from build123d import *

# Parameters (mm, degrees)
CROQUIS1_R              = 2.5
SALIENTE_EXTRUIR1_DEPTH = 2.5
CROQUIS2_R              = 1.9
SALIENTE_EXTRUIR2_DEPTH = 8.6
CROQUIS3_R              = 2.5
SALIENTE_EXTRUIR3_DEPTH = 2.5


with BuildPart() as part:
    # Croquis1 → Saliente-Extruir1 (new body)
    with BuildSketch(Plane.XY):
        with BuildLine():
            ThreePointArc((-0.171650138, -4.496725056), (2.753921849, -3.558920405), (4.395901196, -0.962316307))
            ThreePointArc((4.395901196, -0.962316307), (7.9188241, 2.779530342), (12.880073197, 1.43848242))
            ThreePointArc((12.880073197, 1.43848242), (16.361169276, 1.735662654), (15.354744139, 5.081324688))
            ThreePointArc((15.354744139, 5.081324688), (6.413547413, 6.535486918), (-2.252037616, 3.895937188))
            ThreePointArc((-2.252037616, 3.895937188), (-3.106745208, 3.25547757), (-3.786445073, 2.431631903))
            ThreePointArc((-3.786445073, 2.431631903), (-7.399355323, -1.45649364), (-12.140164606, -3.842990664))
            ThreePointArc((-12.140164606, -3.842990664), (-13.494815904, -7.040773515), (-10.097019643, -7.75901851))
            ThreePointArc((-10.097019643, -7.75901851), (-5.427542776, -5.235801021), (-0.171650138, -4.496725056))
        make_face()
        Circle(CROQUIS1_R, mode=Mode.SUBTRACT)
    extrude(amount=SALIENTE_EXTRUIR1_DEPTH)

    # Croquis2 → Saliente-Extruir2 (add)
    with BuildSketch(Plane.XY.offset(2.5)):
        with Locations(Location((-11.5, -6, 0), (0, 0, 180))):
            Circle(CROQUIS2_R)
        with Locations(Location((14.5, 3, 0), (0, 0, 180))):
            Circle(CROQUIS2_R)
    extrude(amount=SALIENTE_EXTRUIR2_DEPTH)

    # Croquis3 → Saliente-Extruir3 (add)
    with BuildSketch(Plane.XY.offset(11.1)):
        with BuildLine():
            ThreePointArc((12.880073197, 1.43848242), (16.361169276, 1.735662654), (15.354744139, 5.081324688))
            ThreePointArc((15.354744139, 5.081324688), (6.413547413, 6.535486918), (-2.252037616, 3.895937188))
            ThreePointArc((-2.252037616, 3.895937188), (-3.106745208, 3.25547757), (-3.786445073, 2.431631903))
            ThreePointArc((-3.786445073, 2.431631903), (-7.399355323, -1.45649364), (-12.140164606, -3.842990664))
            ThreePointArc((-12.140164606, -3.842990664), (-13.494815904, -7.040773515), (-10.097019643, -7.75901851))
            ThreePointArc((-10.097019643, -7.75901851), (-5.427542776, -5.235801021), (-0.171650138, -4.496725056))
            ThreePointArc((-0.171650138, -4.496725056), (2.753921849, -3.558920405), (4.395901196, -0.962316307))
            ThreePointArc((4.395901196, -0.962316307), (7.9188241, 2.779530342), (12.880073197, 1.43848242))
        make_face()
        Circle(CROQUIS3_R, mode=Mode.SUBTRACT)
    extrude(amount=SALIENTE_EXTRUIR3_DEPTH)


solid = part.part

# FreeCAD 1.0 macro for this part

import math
import FreeCAD as App
import Part
import Sketcher
Q = App.Units.Quantity

doc = App.newDocument("Part")
params = doc.addObject("Spreadsheet::Sheet", "Params")
for row, (alias, value) in enumerate([
    ("sketch1_diameter", "5 mm"),
    ("sketch1_radius", "5 mm"),
    ("sketch1_radius2", "20 mm"),
    ("sketch1_radius3", "15 mm"),
    ("sketch1_radius4", "4.5 mm"),
    ("pad1_length", "2.5 mm"),
    ("sketch2_diameter", "3.8 mm"),
    ("pad2_length", "8.6 mm"),
    ("sketch3_diameter", "5 mm"),
    ("sketch3_radius", "20 mm"),
    ("sketch3_radius2", "15 mm"),
    ("sketch3_radius3", "5 mm"),
    ("sketch3_radius4", "4.5 mm"),
    ("pad3_length", "2.5 mm"),
], start=1):
    params.set(f"A{row}", alias)
    params.set(f"B{row}", "=" + value)
    params.setAlias(f"B{row}", alias)

body = doc.addObject("PartDesign::Body", "Body")

# Sketch on XY plane
sketch1 = body.newObject("Sketcher::SketchObject", "Sketch")
sketch1.AttachmentSupport = (doc.getObject("XY_Plane"), [""])
sketch1.MapMode = "FlatFace"
sketch1.addGeometry([
    Part.ArcOfCircle(Part.Circle(App.Vector(0, 0, 0), App.Vector(0, 0, 1), 4.5), math.radians(-92), math.radians(-12)),  # 0
    Part.ArcOfCircle(Part.Circle(App.Vector(9.3, -2, 0), App.Vector(0, 0, 1), 5), math.radians(44), math.radians(168)),  # 1
    Part.ArcOfCircle(Part.Circle(App.Vector(14.5, 3, 0), App.Vector(0, 0, 1), 2.2), math.radians(-136), math.radians(68)),  # 2
    Part.ArcOfCircle(Part.Circle(App.Vector(7.8, -13.4, 0), App.Vector(0, 0, 1), 20), math.radians(68), math.radians(120)),  # 3
    Part.ArcOfCircle(Part.Circle(App.Vector(0, 0, 0), App.Vector(0, 0, 1), 4.5), math.radians(120), math.radians(147)),  # 4
    Part.ArcOfCircle(Part.Circle(App.Vector(-16.4, 10.5, 0), App.Vector(0, 0, 1), 15), math.radians(-73), math.radians(-33)),  # 5
    Part.ArcOfCircle(Part.Circle(App.Vector(-11.5, -6, 0), App.Vector(0, 0, 1), 2.2), math.radians(107), math.radians(309)),  # 6
    Part.ArcOfCircle(Part.Circle(App.Vector(-0.7, -19.5, 0), App.Vector(0, 0, 1), 15), math.radians(88), math.radians(129)),  # 7
    Part.Circle(App.Vector(0, 0, 0), App.Vector(0, 0, 1), 2.5),  # 8
], False)
sketch1.addConstraint([
    Sketcher.Constraint("Tangent", 0, 2, 1, 2),
    Sketcher.Constraint("Tangent", 1, 1, 2, 1),
    Sketcher.Constraint("Tangent", 2, 2, 3, 1),
    Sketcher.Constraint("Tangent", 3, 2, 4, 1),
    Sketcher.Constraint("Tangent", 4, 2, 5, 2),
    Sketcher.Constraint("Tangent", 5, 1, 6, 1),
    Sketcher.Constraint("Tangent", 6, 2, 7, 2),
    Sketcher.Constraint("Tangent", 7, 1, 0, 1),
    Sketcher.Constraint("Coincident", 0, 3, -1, 1),
    Sketcher.Constraint("Coincident", 4, 3, -1, 1),
    Sketcher.Constraint("Coincident", 8, 3, -1, 1),
    Sketcher.Constraint("Equal", 0, 4),
    Sketcher.Constraint("Equal", 2, 6),
    Sketcher.Constraint("Equal", 5, 7),
    Sketcher.Constraint("Diameter", 8, Q("5 mm")),
    Sketcher.Constraint("Radius", 1, Q("5 mm")),
    Sketcher.Constraint("Radius", 3, Q("20 mm")),
    Sketcher.Constraint("Radius", 5, Q("15 mm")),
    Sketcher.Constraint("Radius", 0, Q("4.5 mm")),
    Sketcher.Constraint("Radius", 2, Q("2.25 mm")),
    Sketcher.Constraint("DistanceY", -1, 1, 2, 3, Q("3 mm")),
    Sketcher.Constraint("DistanceY", 6, 3, -1, 1, Q("6 mm")),
    Sketcher.Constraint("DistanceX", -1, 1, 2, 3, Q("14.5 mm")),
    Sketcher.Constraint("DistanceX", 6, 3, -1, 1, Q("11.5 mm")),
])
sketch1.setExpression("Constraints[14]", "Params.sketch1_diameter")
sketch1.setExpression("Constraints[15]", "Params.sketch1_radius")
sketch1.setExpression("Constraints[16]", "Params.sketch1_radius2")
sketch1.setExpression("Constraints[17]", "Params.sketch1_radius3")
sketch1.setExpression("Constraints[18]", "Params.sketch1_radius4")
pad1 = body.newObject("PartDesign::Pad", "Pad")
pad1.Profile = sketch1
pad1.setExpression("Length", "Params.pad1_length")

# Sketch on XY plane
sketch2 = body.newObject("Sketcher::SketchObject", "Sketch001")
sketch2.AttachmentSupport = (doc.getObject("XY_Plane"), [""])
sketch2.MapMode = "FlatFace"
sketch2.AttachmentOffset = App.Placement(App.Vector(0, 0, 2.5), App.Rotation())
sketch2.addGeometry([
    Part.Circle(App.Vector(-11.5, -6, 0), App.Vector(0, 0, 1), 1.9),
    Part.Circle(App.Vector(14.5, 3, 0), App.Vector(0, 0, 1), 1.9),
], False)
sketch2.addConstraint([
    Sketcher.Constraint("Equal", 0, 1),
    Sketcher.Constraint("Diameter", 0, Q("3.8 mm")),
    Sketcher.Constraint("DistanceY", 0, 3, -1, 1, Q("6 mm")),
    Sketcher.Constraint("DistanceY", -1, 1, 1, 3, Q("3 mm")),
    Sketcher.Constraint("DistanceX", 0, 3, 1, 3, Q("26 mm")),
    Sketcher.Constraint("DistanceX", 0, 3, -1, 1, Q("11.5 mm")),
])
sketch2.setExpression("Constraints[1]", "Params.sketch2_diameter")
pad2 = body.newObject("PartDesign::Pad", "Pad001")
pad2.Profile = sketch2
pad2.setExpression("Length", "Params.pad2_length")

# Sketch on XY plane
sketch3 = body.newObject("Sketcher::SketchObject", "Sketch002")
sketch3.AttachmentSupport = (doc.getObject("XY_Plane"), [""])
sketch3.MapMode = "FlatFace"
sketch3.AttachmentOffset = App.Placement(App.Vector(0, 0, 11.1), App.Rotation())
sketch3.addGeometry([
    Part.ArcOfCircle(Part.Circle(App.Vector(14.5, 3, 0), App.Vector(0, 0, 1), 2.2), math.radians(-136), math.radians(68)),  # 0
    Part.ArcOfCircle(Part.Circle(App.Vector(7.8, -13.4, 0), App.Vector(0, 0, 1), 20), math.radians(68), math.radians(120)),  # 1
    Part.ArcOfCircle(Part.Circle(App.Vector(0, 0, 0), App.Vector(0, 0, 1), 4.5), math.radians(120), math.radians(147)),  # 2
    Part.ArcOfCircle(Part.Circle(App.Vector(-16.4, 10.5, 0), App.Vector(0, 0, 1), 15), math.radians(-73), math.radians(-33)),  # 3
    Part.ArcOfCircle(Part.Circle(App.Vector(-11.5, -6, 0), App.Vector(0, 0, 1), 2.2), math.radians(107), math.radians(309)),  # 4
    Part.ArcOfCircle(Part.Circle(App.Vector(-0.7, -19.5, 0), App.Vector(0, 0, 1), 15), math.radians(88), math.radians(129)),  # 5
    Part.ArcOfCircle(Part.Circle(App.Vector(0, 0, 0), App.Vector(0, 0, 1), 4.5), math.radians(-92), math.radians(-12)),  # 6
    Part.ArcOfCircle(Part.Circle(App.Vector(9.3, -2, 0), App.Vector(0, 0, 1), 5), math.radians(44), math.radians(168)),  # 7
    Part.Circle(App.Vector(0, 0, 0), App.Vector(0, 0, 1), 2.5),  # 8
], False)
sketch3.addConstraint([
    Sketcher.Constraint("Tangent", 0, 2, 1, 1),
    Sketcher.Constraint("Tangent", 1, 2, 2, 1),
    Sketcher.Constraint("Tangent", 2, 2, 3, 2),
    Sketcher.Constraint("Tangent", 3, 1, 4, 1),
    Sketcher.Constraint("Tangent", 4, 2, 5, 2),
    Sketcher.Constraint("Tangent", 5, 1, 6, 1),
    Sketcher.Constraint("Tangent", 6, 2, 7, 2),
    Sketcher.Constraint("Tangent", 7, 1, 0, 1),
    Sketcher.Constraint("Coincident", 2, 3, -1, 1),
    Sketcher.Constraint("Coincident", 6, 3, -1, 1),
    Sketcher.Constraint("Coincident", 8, 3, -1, 1),
    Sketcher.Constraint("Equal", 0, 4),
    Sketcher.Constraint("Equal", 3, 5),
    Sketcher.Constraint("Equal", 2, 6),
    Sketcher.Constraint("Diameter", 8, Q("5 mm")),
    Sketcher.Constraint("Radius", 1, Q("20 mm")),
    Sketcher.Constraint("Radius", 3, Q("15 mm")),
    Sketcher.Constraint("Radius", 7, Q("5 mm")),
    Sketcher.Constraint("Radius", 2, Q("4.5 mm")),
    Sketcher.Constraint("Radius", 0, Q("2.25 mm")),
    Sketcher.Constraint("DistanceY", -1, 1, 0, 3, Q("3 mm")),
    Sketcher.Constraint("DistanceY", 4, 3, -1, 1, Q("6 mm")),
    Sketcher.Constraint("DistanceX", 4, 3, 0, 3, Q("26 mm")),
    Sketcher.Constraint("DistanceX", -1, 1, 0, 3, Q("14.5 mm")),
])
sketch3.setExpression("Constraints[14]", "Params.sketch3_diameter")
sketch3.setExpression("Constraints[15]", "Params.sketch3_radius")
sketch3.setExpression("Constraints[16]", "Params.sketch3_radius2")
sketch3.setExpression("Constraints[17]", "Params.sketch3_radius3")
sketch3.setExpression("Constraints[18]", "Params.sketch3_radius4")
pad3 = body.newObject("PartDesign::Pad", "Pad002")
pad3.Profile = sketch3
pad3.setExpression("Length", "Params.pad3_length")

doc.recompute()
